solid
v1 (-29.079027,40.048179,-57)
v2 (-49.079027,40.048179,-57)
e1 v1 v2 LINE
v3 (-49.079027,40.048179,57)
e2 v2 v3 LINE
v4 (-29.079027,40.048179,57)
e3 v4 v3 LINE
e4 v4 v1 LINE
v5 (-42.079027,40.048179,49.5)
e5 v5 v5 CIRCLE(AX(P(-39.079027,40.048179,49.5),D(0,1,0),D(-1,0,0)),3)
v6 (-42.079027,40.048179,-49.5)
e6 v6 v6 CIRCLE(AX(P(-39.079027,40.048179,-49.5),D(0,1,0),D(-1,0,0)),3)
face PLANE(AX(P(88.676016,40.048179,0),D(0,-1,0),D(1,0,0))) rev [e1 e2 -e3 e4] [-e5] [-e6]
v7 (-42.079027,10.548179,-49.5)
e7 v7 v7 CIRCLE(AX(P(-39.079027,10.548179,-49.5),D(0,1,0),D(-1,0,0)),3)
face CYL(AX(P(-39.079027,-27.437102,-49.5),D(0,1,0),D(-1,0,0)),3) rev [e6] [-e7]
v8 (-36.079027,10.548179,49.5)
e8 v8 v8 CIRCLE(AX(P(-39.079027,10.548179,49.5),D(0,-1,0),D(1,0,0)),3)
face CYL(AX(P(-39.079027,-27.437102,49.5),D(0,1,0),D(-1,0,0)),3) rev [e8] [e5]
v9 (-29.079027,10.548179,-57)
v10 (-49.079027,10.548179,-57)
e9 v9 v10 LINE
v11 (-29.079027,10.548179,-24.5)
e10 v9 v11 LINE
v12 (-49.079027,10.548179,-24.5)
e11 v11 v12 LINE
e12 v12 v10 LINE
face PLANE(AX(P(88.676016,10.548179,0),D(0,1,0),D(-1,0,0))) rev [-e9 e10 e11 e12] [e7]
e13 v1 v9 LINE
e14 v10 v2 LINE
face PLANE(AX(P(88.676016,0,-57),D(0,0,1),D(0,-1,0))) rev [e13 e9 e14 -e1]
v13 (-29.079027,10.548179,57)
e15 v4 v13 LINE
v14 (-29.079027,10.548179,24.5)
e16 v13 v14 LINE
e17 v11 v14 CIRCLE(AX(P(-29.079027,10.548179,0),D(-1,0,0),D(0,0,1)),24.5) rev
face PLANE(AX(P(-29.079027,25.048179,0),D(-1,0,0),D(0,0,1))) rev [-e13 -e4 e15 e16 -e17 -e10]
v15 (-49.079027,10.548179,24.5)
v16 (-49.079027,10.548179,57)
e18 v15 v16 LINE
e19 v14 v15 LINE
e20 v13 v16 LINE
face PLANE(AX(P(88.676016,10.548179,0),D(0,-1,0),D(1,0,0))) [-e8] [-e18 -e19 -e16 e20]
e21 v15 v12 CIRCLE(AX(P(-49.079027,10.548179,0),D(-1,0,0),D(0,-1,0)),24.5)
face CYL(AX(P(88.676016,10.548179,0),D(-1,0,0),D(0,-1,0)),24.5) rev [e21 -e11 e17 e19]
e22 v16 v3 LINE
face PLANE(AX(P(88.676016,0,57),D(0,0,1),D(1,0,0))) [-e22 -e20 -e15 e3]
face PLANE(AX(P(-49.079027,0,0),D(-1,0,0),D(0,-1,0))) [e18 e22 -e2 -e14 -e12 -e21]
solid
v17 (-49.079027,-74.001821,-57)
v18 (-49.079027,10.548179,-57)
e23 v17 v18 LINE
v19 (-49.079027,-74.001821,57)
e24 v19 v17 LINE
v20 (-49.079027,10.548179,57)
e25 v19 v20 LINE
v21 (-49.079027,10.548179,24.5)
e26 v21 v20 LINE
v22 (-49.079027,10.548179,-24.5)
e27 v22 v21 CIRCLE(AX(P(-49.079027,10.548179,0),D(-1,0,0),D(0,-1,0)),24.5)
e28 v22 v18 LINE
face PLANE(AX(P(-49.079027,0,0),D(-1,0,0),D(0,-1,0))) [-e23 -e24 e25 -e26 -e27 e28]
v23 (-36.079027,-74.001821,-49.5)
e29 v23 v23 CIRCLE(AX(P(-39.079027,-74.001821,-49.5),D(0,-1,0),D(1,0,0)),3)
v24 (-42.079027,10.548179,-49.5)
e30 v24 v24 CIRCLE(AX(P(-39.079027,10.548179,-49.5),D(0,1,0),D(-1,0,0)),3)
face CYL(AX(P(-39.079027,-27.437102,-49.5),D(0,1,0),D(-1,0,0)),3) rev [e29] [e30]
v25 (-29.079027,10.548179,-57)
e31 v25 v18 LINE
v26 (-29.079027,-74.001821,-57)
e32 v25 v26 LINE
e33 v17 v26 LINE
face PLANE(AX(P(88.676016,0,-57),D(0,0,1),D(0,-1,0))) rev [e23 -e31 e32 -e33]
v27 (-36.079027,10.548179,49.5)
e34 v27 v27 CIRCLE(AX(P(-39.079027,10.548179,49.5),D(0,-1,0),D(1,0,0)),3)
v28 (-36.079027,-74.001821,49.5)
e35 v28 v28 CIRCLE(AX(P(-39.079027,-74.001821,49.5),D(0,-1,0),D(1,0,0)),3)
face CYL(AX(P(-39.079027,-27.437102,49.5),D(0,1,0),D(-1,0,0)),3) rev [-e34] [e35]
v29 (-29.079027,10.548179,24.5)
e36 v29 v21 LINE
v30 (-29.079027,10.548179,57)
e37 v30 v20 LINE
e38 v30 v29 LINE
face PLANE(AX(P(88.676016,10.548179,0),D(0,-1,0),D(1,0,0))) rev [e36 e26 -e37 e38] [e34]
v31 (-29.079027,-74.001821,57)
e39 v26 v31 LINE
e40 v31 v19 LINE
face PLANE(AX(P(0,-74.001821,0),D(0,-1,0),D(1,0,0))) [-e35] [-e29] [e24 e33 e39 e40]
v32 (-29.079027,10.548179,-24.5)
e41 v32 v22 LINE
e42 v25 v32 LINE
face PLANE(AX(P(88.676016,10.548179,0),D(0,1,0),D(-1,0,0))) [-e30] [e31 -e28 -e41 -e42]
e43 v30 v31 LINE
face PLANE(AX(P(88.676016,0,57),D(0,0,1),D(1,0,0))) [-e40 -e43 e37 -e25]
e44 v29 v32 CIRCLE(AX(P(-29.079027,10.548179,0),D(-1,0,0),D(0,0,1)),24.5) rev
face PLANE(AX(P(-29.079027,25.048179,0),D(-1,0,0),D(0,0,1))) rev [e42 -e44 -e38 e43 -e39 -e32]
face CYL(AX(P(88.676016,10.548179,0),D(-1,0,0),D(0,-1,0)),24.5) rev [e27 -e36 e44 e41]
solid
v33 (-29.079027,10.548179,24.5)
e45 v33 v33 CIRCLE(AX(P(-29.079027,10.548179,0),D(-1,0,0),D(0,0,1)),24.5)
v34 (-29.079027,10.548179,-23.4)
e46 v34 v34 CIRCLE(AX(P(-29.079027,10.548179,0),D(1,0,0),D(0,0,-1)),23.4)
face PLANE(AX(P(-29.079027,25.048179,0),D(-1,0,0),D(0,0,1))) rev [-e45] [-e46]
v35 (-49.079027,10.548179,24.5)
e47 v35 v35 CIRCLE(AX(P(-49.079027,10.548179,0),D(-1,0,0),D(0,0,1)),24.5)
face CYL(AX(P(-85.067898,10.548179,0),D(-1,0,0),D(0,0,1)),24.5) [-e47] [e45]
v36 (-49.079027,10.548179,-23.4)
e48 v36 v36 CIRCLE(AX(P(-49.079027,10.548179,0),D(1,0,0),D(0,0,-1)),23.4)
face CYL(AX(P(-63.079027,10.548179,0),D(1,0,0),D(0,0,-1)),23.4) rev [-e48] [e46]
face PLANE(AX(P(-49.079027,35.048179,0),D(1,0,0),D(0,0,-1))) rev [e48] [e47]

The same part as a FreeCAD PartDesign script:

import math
import FreeCAD as App
import Part
import Sketcher

V = App.Vector

doc = App.newDocument("Part")
body = doc.addObject("PartDesign::Body", "Body")

sketch1 = body.newObject("Sketcher::SketchObject", "Sketch")
sketch1.AttachmentSupport = (doc.getObject("XY_Plane"), [""])
sketch1.MapMode = "FlatFace"
sketch1.addGeometry([
    Part.LineSegment(V(-44.1, 28, 0), V(-34.1, 28, 0)),
    Part.LineSegment(V(-34.1, 28, 0), V(-34.1, 25, 0)),
    Part.LineSegment(V(-34.1, 25, 0), V(-29.1, 25, 0)),
    Part.LineSegment(V(-29.1, 25, 0), V(-29.1, 35, 0)),
    Part.LineSegment(V(-29.1, 35, 0), V(-49.1, 35, 0)),
    Part.LineSegment(V(-49.1, 35, 0), V(-49.1, 28, 0)),
    Part.LineSegment(V(-49.1, 28, 0), V(-46.1, 28, 0)),
    Part.LineSegment(V(-46.1, 28, 0), V(-46.1, 29, 0)),
    Part.LineSegment(V(-46.1, 29, 0), V(-44.1, 29, 0)),
    Part.LineSegment(V(-44.1, 29, 0), V(-44.1, 28, 0)),
], False)
sketch1.addGeometry(Part.LineSegment(V(-49.1, 10.5, 0), V(-29.1, 10.5, 0)), True)
sketch1.addConstraint([
    Sketcher.Constraint("Coincident", 0, 2, 1, 1),
    Sketcher.Constraint("Coincident", 1, 2, 2, 1),
    Sketcher.Constraint("Coincident", 2, 2, 3, 1),
    Sketcher.Constraint("Coincident", 3, 2, 4, 1),
    Sketcher.Constraint("Coincident", 4, 2, 5, 1),
    Sketcher.Constraint("Coincident", 5, 2, 6, 1),
    Sketcher.Constraint("Coincident", 6, 2, 7, 1),
    Sketcher.Constraint("Coincident", 7, 2, 8, 1),
    Sketcher.Constraint("Coincident", 8, 2, 9, 1),
    Sketcher.Constraint("Coincident", 9, 2, 0, 1),
    Sketcher.Constraint("Horizontal", 0),
    Sketcher.Constraint("Vertical", 1),
    Sketcher.Constraint("Horizontal", 2),
    Sketcher.Constraint("Vertical", 3),
    Sketcher.Constraint("Horizontal", 4),
    Sketcher.Constraint("Vertical", 5),
    Sketcher.Constraint("Horizontal", 6),
    Sketcher.Constraint("Vertical", 7),
    Sketcher.Constraint("Horizontal", 8),
    Sketcher.Constraint("Vertical", 9),
    Sketcher.Constraint("Horizontal", 10),
    Sketcher.Constraint("Horizontal", 0, 2, 5, 2),
    Sketcher.Constraint("Vertical", 5, 2, 10, 1),
    Sketcher.Constraint("Vertical", 3, 2, 10, 2),
    Sketcher.Constraint("Equal", 6, 1),
    Sketcher.Constraint("Equal", 0, 3),
    Sketcher.Constraint("DistanceX", 0, 1, 0, 2, 10.0),
    Sketcher.Constraint("DistanceX", 2, 1, 2, 2, 5.0),
    Sketcher.Constraint("DistanceX", 4, 2, 4, 1, 20.0),
    Sketcher.Constraint("DistanceX", 6, 1, 6, 2, 3.0),
    Sketcher.Constraint("DistanceY", 7, 1, 7, 2, 1.0),
    Sketcher.Constraint("DistanceY", 10, 1, 5, 2, 17.5),
    Sketcher.Constraint("DistanceY", -1, 1, 0, 2, 28.048179),
    Sketcher.Constraint("DistanceX", 0, 2, -1, 1, 34.079027),
])
revolution = body.newObject("PartDesign::Revolution", "Revolution")
revolution.Profile = sketch1
revolution.ReferenceAxis = (sketch1, ["Axis0"])
revolution.Angle = 360

sketch2 = body.newObject("Sketcher::SketchObject", "Sketch001")
sketch2.AttachmentSupport = (doc.getObject("YZ_Plane"), [""])
sketch2.MapMode = "FlatFace"
sketch2.AttachmentOffset = App.Placement(V(0, 0, -29.079027), App.Rotation())
sketch2.addGeometry(Part.Circle(V(11, 0, 0), V(0, 0, 1), 23), False)
sketch2.addConstraint([
    Sketcher.Constraint("PointOnObject", 0, 3, -1),
    Sketcher.Constraint("Diameter", 0, 46.8),
    Sketcher.Constraint("DistanceX", -1, 1, 0, 3, 10.548179),
])
pocket1 = body.newObject("PartDesign::Pocket", "Pocket")
pocket1.Profile = sketch2
pocket1.Length = 34
body2 = doc.addObject("PartDesign::Body", "Body001")

sketch3 = body2.newObject("Sketcher::SketchObject", "Sketch002")
sketch3.AttachmentSupport = (doc.getObject("YZ_Plane001"), [""])
sketch3.MapMode = "FlatFace"
sketch3.AttachmentOffset = App.Placement(V(0, 0, -49.079027), App.Rotation())
sketch3.addGeometry([
    Part.LineSegment(V(11, -57, 0), V(11, -24, 0)),
    Part.ArcOfCircle(Part.Circle(V(11, 0, 0), V(0, 0, 1), 24), math.radians(-90), math.radians(90)),
    Part.LineSegment(V(11, 24, 0), V(11, 57, 0)),
    Part.LineSegment(V(11, 57, 0), V(40, 57, 0)),
    Part.LineSegment(V(40, 57, 0), V(40, -57, 0)),
    Part.LineSegment(V(40, -57, 0), V(11, -57, 0)),
], False)
sketch3.addConstraint([
    Sketcher.Constraint("Coincident", 0, 2, 1, 1),
    Sketcher.Constraint("Coincident", 1, 2, 2, 1),
    Sketcher.Constraint("Coincident", 2, 2, 3, 1),
    Sketcher.Constraint("Coincident", 3, 2, 4, 1),
    Sketcher.Constraint("Coincident", 4, 2, 5, 1),
    Sketcher.Constraint("Coincident", 5, 2, 0, 1),
    Sketcher.Constraint("Vertical", 0),
    Sketcher.Constraint("Vertical", 2),
    Sketcher.Constraint("Horizontal", 3),
    Sketcher.Constraint("Vertical", 4),
    Sketcher.Constraint("Horizontal", 5),
    Sketcher.Constraint("Symmetric", 0, 2, 1, 2, -1),
    Sketcher.Constraint("Vertical", 1, 3, 0, 2),
    Sketcher.Constraint("Equal", 0, 2),
    Sketcher.Constraint("Radius", 1, 24.5),
    Sketcher.Constraint("DistanceY", 4, 2, 4, 1, 114.0),
    Sketcher.Constraint("DistanceX", 3, 1, 3, 2, 29.5),
    Sketcher.Constraint("DistanceX", -1, 1, 1, 3, 10.548179),
])
pad1 = body2.newObject("PartDesign::Pad", "Pad")
pad1.Profile = sketch3
pad1.Length = 20
body3 = doc.addObject("PartDesign::Body", "Body002")

sketch4 = body3.newObject("Sketcher::SketchObject", "Sketch003")
sketch4.AttachmentSupport = (doc.getObject("YZ_Plane002"), [""])
sketch4.MapMode = "FlatFace"
sketch4.AttachmentOffset = App.Placement(V(0, 0, -49.079027), App.Rotation())
sketch4.addGeometry([
    Part.ArcOfCircle(Part.Circle(V(11, 0, 0), V(0, 0, 1), 24), math.radians(90), math.radians(270)),
    Part.LineSegment(V(11, -24, 0), V(11, -57, 0)),
    Part.LineSegment(V(11, -57, 0), V(-19, -57, 0)),
    Part.LineSegment(V(-19, -57, 0), V(-19, 57, 0)),
    Part.LineSegment(V(-19, 57, 0), V(11, 57, 0)),
    Part.LineSegment(V(11, 57, 0), V(11, 24, 0)),
], False)
sketch4.addConstraint([
    Sketcher.Constraint("Coincident", 0, 2, 1, 1),
    Sketcher.Constraint("Coincident", 1, 2, 2, 1),
    Sketcher.Constraint("Coincident", 2, 2, 3, 1),
    Sketcher.Constraint("Coincident", 3, 2, 4, 1),
    Sketcher.Constraint("Coincident", 4, 2, 5, 1),
    Sketcher.Constraint("Coincident", 5, 2, 0, 1),
    Sketcher.Constraint("Vertical", 1),
    Sketcher.Constraint("Horizontal", 2),
    Sketcher.Constraint("Vertical", 3),
    Sketcher.Constraint("Horizontal", 4),
    Sketcher.Constraint("Vertical", 5),
    Sketcher.Constraint("Symmetric", 1, 2, 4, 2, -1),
    Sketcher.Constraint("PointOnObject", 0, 3, -1),
    Sketcher.Constraint("Radius", 0, 24.5),
    Sketcher.Constraint("DistanceY", 3, 1, 3, 2, 114.0),
    Sketcher.Constraint("DistanceX", 2, 2, 2, 1, 29.5),
    Sketcher.Constraint("DistanceX", 2, 2, 0, 3, 29.5),
    Sketcher.Constraint("DistanceX", -1, 1, 0, 3, 10.548179),
])
pad2 = body3.newObject("PartDesign::Pad", "Pad001")
pad2.Profile = sketch4
pad2.Length = 20
body4 = doc.addObject("PartDesign::Body", "Body003")
body4.AllowCompound = True

sketch5 = body4.newObject("Sketcher::SketchObject", "Sketch004")
sketch5.AttachmentSupport = (doc.getObject("XZ_Plane003"), [""])
sketch5.MapMode = "FlatFace"
sketch5.AttachmentOffset = App.Placement(V(0, 0, -40.048179), App.Rotation())
sketch5.addGeometry([
    Part.Circle(V(-39.1, -49.5, 0), V(0, 0, 1), 3),
    Part.Circle(V(-39.1, 49.5, 0), V(0, 0, 1), 3),
], False)
sketch5.addConstraint([
    Sketcher.Constraint("Equal", 0, 1),
    Sketcher.Constraint("Symmetric", 0, 3, 1, 3, -1),
    Sketcher.Constraint("Diameter", 0, 6.0),
    Sketcher.Constraint("DistanceY", 0, 3, 1, 3, 99.0),
    Sketcher.Constraint("DistanceX", 0, 3, -1, 1, 39.079027),
])
pad3 = body4.newObject("PartDesign::Pad", "Pad002")
pad3.Profile = sketch5
pad3.Length = 59
doc.recompute()

body5 = doc.addObject("PartDesign::Body", "Body004")
body5.BaseFeature = body4
boolean = body2.newObject("PartDesign::Boolean", "Boolean")
boolean.Type = "Cut"
boolean.addObjects([body5])
doc.recompute()

boolean2 = body3.newObject("PartDesign::Boolean", "Boolean001")
boolean2.Type = "Cut"
boolean2.addObjects([body4])

sketch6 = body3.newObject("Sketcher::SketchObject", "Sketch005")
sketch6.AttachmentSupport = (doc.getObject("XZ_Plane002"), [""])
sketch6.MapMode = "FlatFace"
sketch6.AttachmentOffset = App.Placement(V(0, 0, 18.951821), App.Rotation())
sketch6.addGeometry([
    Part.LineSegment(V(-49.1, 57, 0), V(-49.1, -57, 0)),
    Part.LineSegment(V(-49.1, -57, 0), V(-29.1, -57, 0)),
    Part.LineSegment(V(-29.1, -57, 0), V(-29.1, 57, 0)),
    Part.LineSegment(V(-29.1, 57, 0), V(-49.1, 57, 0)),
    Part.Circle(V(-39.1, -49.5, 0), V(0, 0, 1), 3),
    Part.Circle(V(-39.1, 49.5, 0), V(0, 0, 1), 3),
], False)
sketch6.addConstraint([
    Sketcher.Constraint("Coincident", 0, 2, 1, 1),
    Sketcher.Constraint("Coincident", 1, 2, 2, 1),
    Sketcher.Constraint("Coincident", 2, 2, 3, 1),
    Sketcher.Constraint("Coincident", 3, 2, 0, 1),
    Sketcher.Constraint("Vertical", 0),
    Sketcher.Constraint("Horizontal", 1),
    Sketcher.Constraint("Vertical", 2),
    Sketcher.Constraint("Horizontal", 3),
    Sketcher.Constraint("Equal", 4, 5),
    Sketcher.Constraint("Symmetric", 4, 3, 5, 3, -1),
    Sketcher.Constraint("Diameter", 4, 6.0),
    Sketcher.Constraint("DistanceX", 1, 1, 1, 2, 20.0),
    Sketcher.Constraint("DistanceY", 0, 2, 0, 1, 114.0),
    Sketcher.Constraint("DistanceY", 0, 2, -1, 1, 57.0),
    Sketcher.Constraint("DistanceY", 4, 3, 5, 3, 99.0),
    Sketcher.Constraint("DistanceX", 0, 2, 4, 3, 10.0),
    Sketcher.Constraint("DistanceX", 4, 3, -1, 1, 39.079027),
])
pad4 = body3.newObject("PartDesign::Pad", "Pad003")
pad4.Profile = sketch6
pad4.Length = 55.05

doc.recompute()
